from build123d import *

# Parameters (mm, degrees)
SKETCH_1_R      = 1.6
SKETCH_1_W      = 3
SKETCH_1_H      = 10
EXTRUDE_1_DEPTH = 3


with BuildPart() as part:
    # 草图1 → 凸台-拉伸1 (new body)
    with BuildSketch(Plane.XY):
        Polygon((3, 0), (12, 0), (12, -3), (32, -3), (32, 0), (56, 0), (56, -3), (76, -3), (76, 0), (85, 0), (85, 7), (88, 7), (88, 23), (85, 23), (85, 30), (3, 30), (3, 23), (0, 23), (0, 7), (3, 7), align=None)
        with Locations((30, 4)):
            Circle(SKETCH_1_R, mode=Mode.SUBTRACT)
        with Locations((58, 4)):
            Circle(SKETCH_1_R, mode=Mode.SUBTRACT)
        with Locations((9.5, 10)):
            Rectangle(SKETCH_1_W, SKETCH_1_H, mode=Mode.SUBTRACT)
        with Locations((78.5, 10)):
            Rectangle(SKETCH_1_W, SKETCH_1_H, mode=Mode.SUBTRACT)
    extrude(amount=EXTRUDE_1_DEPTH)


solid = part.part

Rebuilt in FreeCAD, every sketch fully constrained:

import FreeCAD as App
import Part
import Sketcher

V = App.Vector
Q = App.Units.Quantity


def add_polygon(sketch, points):
    """Adds a closed chain of lines whose ends are joined by coincident constraints."""
    first, n = sketch.GeometryCount, len(points)
    for a, b in zip(points, points[1:] + points[:1]):
        sketch.addGeometry(Part.LineSegment(App.Vector(*a, 0), App.Vector(*b, 0)), False)
    for i in range(n):
        sketch.addConstraint(Sketcher.Constraint("Coincident", first + i, 2, first + (i + 1) % n, 1))

doc = App.newDocument("Part")
params = doc.addObject("Spreadsheet::Sheet", "Params")
for row, (alias, value) in enumerate([
    ("sketch1_diameter", "3.2 mm"),
    ("sketch1_width", "9 mm"),
    ("sketch1_width2", "20 mm"),
    ("sketch1_width3", "24 mm"),
    ("sketch1_width4", "3 mm"),
    ("pad1_length", "3 mm"),
], start=1):
    params.set(f"A{row}", alias)
    params.set(f"B{row}", "=" + value)
    params.setAlias(f"B{row}", alias)

body = doc.addObject("PartDesign::Body", "Body")

sketch1 = body.newObject("Sketcher::SketchObject", "Sketch")
sketch1.AttachmentSupport = (doc.getObject("XY_Plane"), [""])
sketch1.MapMode = "FlatFace"
add_polygon(sketch1, [(3, 0), (12, 0), (12, -3), (32, -3), (32, 0), (56, 0), (56, -3), (76, -3), (76, 0), (85, 0), (85, 7), (88, 7), (88, 23), (85, 23), (85, 30), (3, 30), (3, 23), (0, 23), (0, 7), (3, 7)])
sketch1.addGeometry(Part.Circle(V(30, 4, 0), V(0, 0, 1), 1.6), False)
sketch1.addGeometry(Part.Circle(V(58, 4, 0), V(0, 0, 1), 1.6), False)
add_polygon(sketch1, [(11, 5), (8, 5), (8, 15), (11, 15)])
add_polygon(sketch1, [(80, 5), (77, 5), (77, 15), (80, 15)])
sketch1.addConstraint([
    Sketcher.Constraint("Horizontal", 0),
    Sketcher.Constraint("Vertical", 1),
    Sketcher.Constraint("Horizontal", 2),
    Sketcher.Constraint("Vertical", 3),
    Sketcher.Constraint("Horizontal", 4),
    Sketcher.Constraint("Vertical", 5),
    Sketcher.Constraint("Horizontal", 6),
    Sketcher.Constraint("Vertical", 7),
    Sketcher.Constraint("Horizontal", 8),
    Sketcher.Constraint("Vertical", 9),
    Sketcher.Constraint("Horizontal", 10),
    Sketcher.Constraint("Vertical", 11),
    Sketcher.Constraint("Horizontal", 12),
    Sketcher.Constraint("Vertical", 13),
    Sketcher.Constraint("Horizontal", 14),
    Sketcher.Constraint("Vertical", 15),
    Sketcher.Constraint("Horizontal", 16),
    Sketcher.Constraint("Vertical", 17),
    Sketcher.Constraint("Horizontal", 18),
    Sketcher.Constraint("Vertical", 19),
    Sketcher.Constraint("Horizontal", 22),
    Sketcher.Constraint("Vertical", 23),
    Sketcher.Constraint("Horizontal", 24),
    Sketcher.Constraint("Vertical", 25),
    Sketcher.Constraint("Horizontal", 26),
    Sketcher.Constraint("Vertical", 27),
    Sketcher.Constraint("Horizontal", 28),
    Sketcher.Constraint("Vertical", 29),
    Sketcher.Constraint("Equal", 20, 21),
    Sketcher.Constraint("PointOnObject", 0, 2, -1),
    Sketcher.Constraint("PointOnObject", 3, 2, -1),
    Sketcher.Constraint("PointOnObject", 7, 2, -1),
    Sketcher.Constraint("PointOnObject", 16, 2, -2),
    Sketcher.Constraint("Horizontal", 20, 3, 21, 3),
    Sketcher.Constraint("Horizontal", 2, 2, 5, 2),
    Sketcher.Constraint("Horizontal", 12, 2, 15, 2),
    Sketcher.Constraint("Horizontal", 10, 2, 17, 2),
    Sketcher.Constraint("Horizontal", 25, 2, 26, 2),
    Sketcher.Constraint("Horizontal", 24, 2, 27, 2),
    Sketcher.Constraint("Vertical", 9, 2, 12, 2),
    Sketcher.Constraint("Vertical", 15, 2, 18, 2),
    Sketcher.Constraint("Equal", 2, 6),
    Sketcher.Constraint("Equal", 0, 8),
    Sketcher.Constraint("Equal", 12, 16),
    Sketcher.Constraint("Equal", 18, 22),
    Sketcher.Constraint("Equal", 24, 26),
    Sketcher.Constraint("Equal", 28, 1),
    Sketcher.Constraint("Equal", 9, 13),
    Sketcher.Constraint("Diameter", 20, Q("3.2 mm")),
    Sketcher.Constraint("DistanceX", 0, 1, 0, 2, Q("9 mm")),
    Sketcher.Constraint("DistanceX", 2, 1, 2, 2, Q("20 mm")),
    Sketcher.Constraint("DistanceX", 4, 1, 4, 2, Q("24 mm")),
    Sketcher.Constraint("DistanceX", 10, 1, 10, 2, Q("3 mm")),
    Sketcher.Constraint("DistanceY", 9, 1, 9, 2, Q("7 mm")),
    Sketcher.Constraint("DistanceY", 11, 1, 11, 2, Q("16 mm")),
    Sketcher.Constraint("DistanceY", 23, 1, 23, 2, Q("10 mm")),
    Sketcher.Constraint("DistanceX", -1, 1, 20, 3, Q("30 mm")),
    Sketcher.Constraint("DistanceY", -1, 1, 20, 3, Q("4 mm")),
    Sketcher.Constraint("DistanceX", -1, 1, 21, 3, Q("58 mm")),
    Sketcher.Constraint("DistanceX", -1, 1, 22, 2, Q("8 mm")),
    Sketcher.Constraint("DistanceY", -1, 1, 22, 2, Q("5 mm")),
    Sketcher.Constraint("DistanceX", -1, 1, 26, 2, Q("77 mm")),
])
sketch1.setExpression("Constraints[76]", "Params.sketch1_diameter")
sketch1.setExpression("Constraints[77]", "Params.sketch1_width")
sketch1.setExpression("Constraints[78]", "Params.sketch1_width2")
sketch1.setExpression("Constraints[79]", "Params.sketch1_width3")
sketch1.setExpression("Constraints[80]", "Params.sketch1_width4")
pad1 = body.newObject("PartDesign::Pad", "Pad")
pad1.Profile = sketch1
pad1.setExpression("Length", "Params.pad1_length")

doc.recompute()
